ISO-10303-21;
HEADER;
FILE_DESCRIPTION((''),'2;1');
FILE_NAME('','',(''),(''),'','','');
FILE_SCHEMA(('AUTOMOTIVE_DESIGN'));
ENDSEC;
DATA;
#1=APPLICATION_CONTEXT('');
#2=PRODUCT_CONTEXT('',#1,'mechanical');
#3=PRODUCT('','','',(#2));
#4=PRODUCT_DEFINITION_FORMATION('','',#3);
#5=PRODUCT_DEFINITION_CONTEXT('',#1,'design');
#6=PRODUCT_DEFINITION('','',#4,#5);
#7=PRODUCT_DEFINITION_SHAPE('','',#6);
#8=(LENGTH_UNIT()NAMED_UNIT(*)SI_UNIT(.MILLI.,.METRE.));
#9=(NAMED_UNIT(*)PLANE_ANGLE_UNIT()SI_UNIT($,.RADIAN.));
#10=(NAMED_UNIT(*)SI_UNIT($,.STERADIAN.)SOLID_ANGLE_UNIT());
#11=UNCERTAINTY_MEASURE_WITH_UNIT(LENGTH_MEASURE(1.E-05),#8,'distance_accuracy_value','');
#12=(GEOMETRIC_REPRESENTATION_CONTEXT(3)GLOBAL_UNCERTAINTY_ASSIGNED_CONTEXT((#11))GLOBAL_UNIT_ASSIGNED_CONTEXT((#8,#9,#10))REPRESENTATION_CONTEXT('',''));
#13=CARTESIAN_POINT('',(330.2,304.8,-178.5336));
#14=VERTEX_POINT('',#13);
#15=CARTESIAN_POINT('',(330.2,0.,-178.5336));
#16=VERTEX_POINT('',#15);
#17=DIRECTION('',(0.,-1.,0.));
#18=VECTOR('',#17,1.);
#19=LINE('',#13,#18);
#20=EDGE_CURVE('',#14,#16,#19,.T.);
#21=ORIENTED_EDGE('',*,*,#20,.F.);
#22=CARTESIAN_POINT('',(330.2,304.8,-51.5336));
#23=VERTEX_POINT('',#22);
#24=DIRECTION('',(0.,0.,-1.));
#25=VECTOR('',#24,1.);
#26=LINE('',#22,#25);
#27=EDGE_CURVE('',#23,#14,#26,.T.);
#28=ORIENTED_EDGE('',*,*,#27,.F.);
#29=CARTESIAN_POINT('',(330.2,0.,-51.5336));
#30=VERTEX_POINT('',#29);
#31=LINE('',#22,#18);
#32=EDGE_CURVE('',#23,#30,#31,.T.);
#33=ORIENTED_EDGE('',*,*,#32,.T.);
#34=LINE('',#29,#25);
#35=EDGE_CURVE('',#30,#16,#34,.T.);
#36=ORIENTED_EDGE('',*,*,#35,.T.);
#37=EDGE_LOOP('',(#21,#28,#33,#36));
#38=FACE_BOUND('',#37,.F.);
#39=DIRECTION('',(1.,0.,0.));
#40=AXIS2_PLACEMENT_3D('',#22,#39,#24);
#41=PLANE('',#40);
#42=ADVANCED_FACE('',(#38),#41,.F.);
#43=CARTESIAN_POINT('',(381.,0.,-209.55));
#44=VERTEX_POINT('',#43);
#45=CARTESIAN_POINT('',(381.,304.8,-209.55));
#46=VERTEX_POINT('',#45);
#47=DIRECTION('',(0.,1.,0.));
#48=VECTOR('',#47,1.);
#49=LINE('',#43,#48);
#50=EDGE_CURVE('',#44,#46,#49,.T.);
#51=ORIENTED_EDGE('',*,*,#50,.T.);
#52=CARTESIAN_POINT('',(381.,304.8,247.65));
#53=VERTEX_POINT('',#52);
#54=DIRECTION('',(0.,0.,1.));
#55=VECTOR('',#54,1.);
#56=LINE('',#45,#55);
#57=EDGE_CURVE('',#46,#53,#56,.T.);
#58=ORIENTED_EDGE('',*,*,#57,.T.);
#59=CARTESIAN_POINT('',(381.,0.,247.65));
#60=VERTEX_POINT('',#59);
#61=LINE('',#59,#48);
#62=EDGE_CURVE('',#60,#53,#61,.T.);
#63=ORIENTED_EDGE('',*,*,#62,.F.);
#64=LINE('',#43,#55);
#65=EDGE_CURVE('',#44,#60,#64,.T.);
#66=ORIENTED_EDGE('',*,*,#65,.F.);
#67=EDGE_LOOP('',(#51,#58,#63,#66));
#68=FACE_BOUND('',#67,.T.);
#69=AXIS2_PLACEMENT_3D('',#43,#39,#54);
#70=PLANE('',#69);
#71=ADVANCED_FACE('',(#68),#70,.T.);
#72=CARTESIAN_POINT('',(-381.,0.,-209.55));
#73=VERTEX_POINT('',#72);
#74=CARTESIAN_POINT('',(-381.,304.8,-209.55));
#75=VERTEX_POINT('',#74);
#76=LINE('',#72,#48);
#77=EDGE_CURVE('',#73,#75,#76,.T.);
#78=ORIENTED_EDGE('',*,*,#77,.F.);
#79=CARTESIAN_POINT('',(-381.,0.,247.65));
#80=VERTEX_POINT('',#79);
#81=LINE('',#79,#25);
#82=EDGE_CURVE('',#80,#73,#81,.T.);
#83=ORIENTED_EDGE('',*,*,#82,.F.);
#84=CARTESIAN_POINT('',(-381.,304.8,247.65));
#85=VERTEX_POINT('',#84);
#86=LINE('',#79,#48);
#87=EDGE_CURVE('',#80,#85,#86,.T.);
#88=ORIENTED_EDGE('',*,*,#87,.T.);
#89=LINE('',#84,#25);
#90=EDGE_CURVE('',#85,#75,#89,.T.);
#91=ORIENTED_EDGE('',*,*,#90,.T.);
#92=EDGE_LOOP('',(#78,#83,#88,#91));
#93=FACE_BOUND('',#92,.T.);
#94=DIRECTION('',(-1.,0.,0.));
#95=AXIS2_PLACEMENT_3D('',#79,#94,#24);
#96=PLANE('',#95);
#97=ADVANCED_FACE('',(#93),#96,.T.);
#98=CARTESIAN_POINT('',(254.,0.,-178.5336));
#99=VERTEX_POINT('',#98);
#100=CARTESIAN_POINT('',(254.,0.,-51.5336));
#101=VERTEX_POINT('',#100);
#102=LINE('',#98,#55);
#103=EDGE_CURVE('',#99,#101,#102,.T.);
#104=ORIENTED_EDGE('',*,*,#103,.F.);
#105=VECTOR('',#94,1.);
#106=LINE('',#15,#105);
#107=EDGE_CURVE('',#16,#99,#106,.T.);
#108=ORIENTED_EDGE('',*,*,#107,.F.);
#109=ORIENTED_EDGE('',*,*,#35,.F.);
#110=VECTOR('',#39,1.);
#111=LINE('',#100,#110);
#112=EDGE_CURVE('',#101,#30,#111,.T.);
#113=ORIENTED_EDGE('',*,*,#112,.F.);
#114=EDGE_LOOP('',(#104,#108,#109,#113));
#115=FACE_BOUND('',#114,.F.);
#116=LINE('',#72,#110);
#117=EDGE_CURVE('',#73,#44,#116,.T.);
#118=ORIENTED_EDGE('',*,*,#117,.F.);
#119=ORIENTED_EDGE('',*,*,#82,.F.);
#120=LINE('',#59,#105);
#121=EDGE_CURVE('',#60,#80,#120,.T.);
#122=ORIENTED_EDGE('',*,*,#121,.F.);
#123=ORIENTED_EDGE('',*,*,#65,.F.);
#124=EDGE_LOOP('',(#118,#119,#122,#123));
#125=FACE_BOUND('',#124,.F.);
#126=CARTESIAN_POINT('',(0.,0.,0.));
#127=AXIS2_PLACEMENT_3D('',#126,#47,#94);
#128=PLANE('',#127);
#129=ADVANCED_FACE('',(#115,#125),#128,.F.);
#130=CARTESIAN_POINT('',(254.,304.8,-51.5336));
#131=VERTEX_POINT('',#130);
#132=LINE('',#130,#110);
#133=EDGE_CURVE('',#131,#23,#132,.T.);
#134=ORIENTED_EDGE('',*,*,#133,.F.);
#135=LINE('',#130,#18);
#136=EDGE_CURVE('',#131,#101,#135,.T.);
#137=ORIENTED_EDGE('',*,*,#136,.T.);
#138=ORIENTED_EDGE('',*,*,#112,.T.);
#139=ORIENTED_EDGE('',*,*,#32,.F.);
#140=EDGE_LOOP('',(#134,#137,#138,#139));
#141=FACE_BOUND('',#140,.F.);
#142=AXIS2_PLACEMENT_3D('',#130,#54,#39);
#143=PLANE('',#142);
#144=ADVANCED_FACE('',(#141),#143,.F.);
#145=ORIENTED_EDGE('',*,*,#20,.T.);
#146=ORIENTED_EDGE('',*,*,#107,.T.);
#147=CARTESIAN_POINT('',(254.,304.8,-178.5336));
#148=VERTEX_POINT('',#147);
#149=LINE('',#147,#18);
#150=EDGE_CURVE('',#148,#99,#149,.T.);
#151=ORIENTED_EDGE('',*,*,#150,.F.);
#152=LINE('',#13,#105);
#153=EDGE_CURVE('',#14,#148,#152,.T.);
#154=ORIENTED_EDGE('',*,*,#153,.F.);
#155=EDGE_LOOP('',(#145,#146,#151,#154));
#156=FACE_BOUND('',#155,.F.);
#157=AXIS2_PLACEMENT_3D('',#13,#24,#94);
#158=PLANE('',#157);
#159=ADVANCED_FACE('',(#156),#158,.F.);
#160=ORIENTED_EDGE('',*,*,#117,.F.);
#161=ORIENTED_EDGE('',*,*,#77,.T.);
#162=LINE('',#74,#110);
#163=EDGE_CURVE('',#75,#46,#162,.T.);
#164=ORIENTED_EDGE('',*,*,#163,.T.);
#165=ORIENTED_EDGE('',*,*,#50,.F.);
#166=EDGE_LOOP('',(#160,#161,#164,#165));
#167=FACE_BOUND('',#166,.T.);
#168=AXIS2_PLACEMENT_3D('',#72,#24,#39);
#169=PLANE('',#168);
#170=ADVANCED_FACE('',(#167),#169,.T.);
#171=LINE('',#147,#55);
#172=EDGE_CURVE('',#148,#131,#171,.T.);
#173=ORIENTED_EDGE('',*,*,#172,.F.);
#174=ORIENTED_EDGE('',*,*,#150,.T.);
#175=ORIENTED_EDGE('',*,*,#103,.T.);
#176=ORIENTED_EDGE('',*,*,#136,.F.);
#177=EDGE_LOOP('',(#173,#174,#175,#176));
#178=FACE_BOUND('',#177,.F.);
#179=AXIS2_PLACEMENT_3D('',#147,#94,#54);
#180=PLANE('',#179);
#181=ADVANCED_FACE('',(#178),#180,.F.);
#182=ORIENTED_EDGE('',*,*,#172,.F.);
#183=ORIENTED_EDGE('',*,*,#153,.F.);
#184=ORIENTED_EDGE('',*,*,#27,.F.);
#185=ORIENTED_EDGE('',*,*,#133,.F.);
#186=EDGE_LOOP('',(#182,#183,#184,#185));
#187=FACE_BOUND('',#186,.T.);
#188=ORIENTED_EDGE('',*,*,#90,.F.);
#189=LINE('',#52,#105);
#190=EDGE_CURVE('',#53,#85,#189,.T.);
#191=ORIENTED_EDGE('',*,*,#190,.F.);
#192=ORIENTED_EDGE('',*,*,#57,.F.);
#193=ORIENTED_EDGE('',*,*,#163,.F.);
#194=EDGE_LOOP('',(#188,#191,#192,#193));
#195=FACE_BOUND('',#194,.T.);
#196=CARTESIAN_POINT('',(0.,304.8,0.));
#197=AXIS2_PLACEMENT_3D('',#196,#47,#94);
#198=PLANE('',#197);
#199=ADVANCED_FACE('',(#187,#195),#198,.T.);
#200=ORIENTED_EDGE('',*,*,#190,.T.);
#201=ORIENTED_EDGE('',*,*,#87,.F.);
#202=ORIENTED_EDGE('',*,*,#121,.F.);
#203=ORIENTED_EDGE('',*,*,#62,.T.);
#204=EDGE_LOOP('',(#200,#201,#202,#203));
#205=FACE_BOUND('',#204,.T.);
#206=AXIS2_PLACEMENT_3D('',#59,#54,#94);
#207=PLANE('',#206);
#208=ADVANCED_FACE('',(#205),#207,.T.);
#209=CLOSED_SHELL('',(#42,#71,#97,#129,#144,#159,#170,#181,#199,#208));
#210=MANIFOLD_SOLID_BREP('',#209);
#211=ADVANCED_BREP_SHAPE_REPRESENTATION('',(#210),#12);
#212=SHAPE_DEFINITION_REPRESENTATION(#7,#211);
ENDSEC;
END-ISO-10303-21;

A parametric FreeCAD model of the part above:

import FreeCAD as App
import Part
import Sketcher

V = App.Vector
Q = App.Units.Quantity


def add_polygon(sketch, points):
    """Adds a closed chain of lines whose ends are joined by coincident constraints."""
    first, n = sketch.GeometryCount, len(points)
    for a, b in zip(points, points[1:] + points[:1]):
        sketch.addGeometry(Part.LineSegment(App.Vector(*a, 0), App.Vector(*b, 0)), False)
    for i in range(n):
        sketch.addConstraint(Sketcher.Constraint("Coincident", first + i, 2, first + (i + 1) % n, 1))

doc = App.newDocument("Part")
body = doc.addObject("PartDesign::Body", "Body")

# Sketch on XZ plane
sketch1 = body.newObject("Sketcher::SketchObject", "Sketch")
sketch1.AttachmentSupport = (doc.getObject("XZ_Plane"), [""])
sketch1.MapMode = "FlatFace"
add_polygon(sketch1, [(381, -210), (-381, -210), (-381, 248), (381, 248)])  # lines 0-3
sketch1.addConstraint([
    Sketcher.Constraint("Horizontal", 0),
    Sketcher.Constraint("Vertical", 1),
    Sketcher.Constraint("Horizontal", 2),
    Sketcher.Constraint("Vertical", 3),
    Sketcher.Constraint("DistanceX", 0, 2, 0, 1, Q("30 in")),
    Sketcher.Constraint("DistanceY", 1, 1, 1, 2, Q("18 in")),
    Sketcher.Constraint("DistanceX", 0, 2, -1, 1, Q("15 in")),
    Sketcher.Constraint("DistanceY", 0, 2, -1, 1, Q("8.25 in")),
])
pad1 = body.newObject("PartDesign::Pad", "Pad")
pad1.Profile = sketch1
pad1.Length = Q("12 in")
pad1.Reversed = True

# Sketch on XZ plane
sketch2 = body.newObject("Sketcher::SketchObject", "Sketch001")
sketch2.AttachmentSupport = (doc.getObject("XZ_Plane"), [""])
sketch2.MapMode = "FlatFace"
sketch2.AttachmentOffset = App.Placement(V(0, 0, -12 * 25.4), App.Rotation())
add_polygon(sketch2, [(254, -179), (254, -52), (330, -52), (330, -179)])  # lines 0-3
sketch2.addConstraint([
    Sketcher.Constraint("Vertical", 0),
    Sketcher.Constraint("Horizontal", 1),
    Sketcher.Constraint("Vertical", 2),
    Sketcher.Constraint("Horizontal", 3),
    Sketcher.Constraint("DistanceX", 1, 1, 1, 2, Q("3 in")),
    Sketcher.Constraint("DistanceY", 0, 1, 0, 2, Q("5 in")),
    Sketcher.Constraint("DistanceX", -1, 1, 0, 2, Q("10 in")),
    Sketcher.Constraint("DistanceY", 0, 2, -1, 1, Q("51.5336 mm")),
])
pocket1 = body.newObject("PartDesign::Pocket", "Pocket")
pocket1.Profile = sketch2
pocket1.Length = Q("12 in")
pocket1.Reversed = True

doc.recompute()
